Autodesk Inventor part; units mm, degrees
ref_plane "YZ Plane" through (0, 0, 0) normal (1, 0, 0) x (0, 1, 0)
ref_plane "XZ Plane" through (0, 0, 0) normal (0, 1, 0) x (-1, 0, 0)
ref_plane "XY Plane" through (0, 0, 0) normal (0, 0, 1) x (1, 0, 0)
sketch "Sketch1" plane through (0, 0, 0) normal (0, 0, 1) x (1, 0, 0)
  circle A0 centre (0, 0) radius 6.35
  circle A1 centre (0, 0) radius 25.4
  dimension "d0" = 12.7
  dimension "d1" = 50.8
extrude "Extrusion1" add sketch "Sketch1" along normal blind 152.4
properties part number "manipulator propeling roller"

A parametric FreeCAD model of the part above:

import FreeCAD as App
import Part
import Sketcher
Q = App.Units.Quantity

doc = App.newDocument("Part")
body = doc.addObject("PartDesign::Body", "Body")

sketch1 = body.newObject("Sketcher::SketchObject", "Sketch")
sketch1.AttachmentSupport = (doc.getObject("XY_Plane"), [""])
sketch1.MapMode = "FlatFace"
sketch1.addGeometry(Part.Circle(App.Vector(0, 0, 0), App.Vector(0, 0, 1), 25), False)
sketch1.addGeometry(Part.Circle(App.Vector(0, 0, 0), App.Vector(0, 0, 1), 6), False)
sketch1.addConstraint(Sketcher.Constraint("Coincident", 0, 3, -1, 1))
sketch1.addConstraint(Sketcher.Constraint("Coincident", 1, 3, -1, 1))
sketch1.addConstraint(Sketcher.Constraint("Diameter", 0, Q("2 in")))
sketch1.addConstraint(Sketcher.Constraint("Diameter", 1, Q("0.5 in")))
pad1 = body.newObject("PartDesign::Pad", "Pad")
pad1.Profile = sketch1
pad1.Length = Q("6 in")

doc.recompute()
